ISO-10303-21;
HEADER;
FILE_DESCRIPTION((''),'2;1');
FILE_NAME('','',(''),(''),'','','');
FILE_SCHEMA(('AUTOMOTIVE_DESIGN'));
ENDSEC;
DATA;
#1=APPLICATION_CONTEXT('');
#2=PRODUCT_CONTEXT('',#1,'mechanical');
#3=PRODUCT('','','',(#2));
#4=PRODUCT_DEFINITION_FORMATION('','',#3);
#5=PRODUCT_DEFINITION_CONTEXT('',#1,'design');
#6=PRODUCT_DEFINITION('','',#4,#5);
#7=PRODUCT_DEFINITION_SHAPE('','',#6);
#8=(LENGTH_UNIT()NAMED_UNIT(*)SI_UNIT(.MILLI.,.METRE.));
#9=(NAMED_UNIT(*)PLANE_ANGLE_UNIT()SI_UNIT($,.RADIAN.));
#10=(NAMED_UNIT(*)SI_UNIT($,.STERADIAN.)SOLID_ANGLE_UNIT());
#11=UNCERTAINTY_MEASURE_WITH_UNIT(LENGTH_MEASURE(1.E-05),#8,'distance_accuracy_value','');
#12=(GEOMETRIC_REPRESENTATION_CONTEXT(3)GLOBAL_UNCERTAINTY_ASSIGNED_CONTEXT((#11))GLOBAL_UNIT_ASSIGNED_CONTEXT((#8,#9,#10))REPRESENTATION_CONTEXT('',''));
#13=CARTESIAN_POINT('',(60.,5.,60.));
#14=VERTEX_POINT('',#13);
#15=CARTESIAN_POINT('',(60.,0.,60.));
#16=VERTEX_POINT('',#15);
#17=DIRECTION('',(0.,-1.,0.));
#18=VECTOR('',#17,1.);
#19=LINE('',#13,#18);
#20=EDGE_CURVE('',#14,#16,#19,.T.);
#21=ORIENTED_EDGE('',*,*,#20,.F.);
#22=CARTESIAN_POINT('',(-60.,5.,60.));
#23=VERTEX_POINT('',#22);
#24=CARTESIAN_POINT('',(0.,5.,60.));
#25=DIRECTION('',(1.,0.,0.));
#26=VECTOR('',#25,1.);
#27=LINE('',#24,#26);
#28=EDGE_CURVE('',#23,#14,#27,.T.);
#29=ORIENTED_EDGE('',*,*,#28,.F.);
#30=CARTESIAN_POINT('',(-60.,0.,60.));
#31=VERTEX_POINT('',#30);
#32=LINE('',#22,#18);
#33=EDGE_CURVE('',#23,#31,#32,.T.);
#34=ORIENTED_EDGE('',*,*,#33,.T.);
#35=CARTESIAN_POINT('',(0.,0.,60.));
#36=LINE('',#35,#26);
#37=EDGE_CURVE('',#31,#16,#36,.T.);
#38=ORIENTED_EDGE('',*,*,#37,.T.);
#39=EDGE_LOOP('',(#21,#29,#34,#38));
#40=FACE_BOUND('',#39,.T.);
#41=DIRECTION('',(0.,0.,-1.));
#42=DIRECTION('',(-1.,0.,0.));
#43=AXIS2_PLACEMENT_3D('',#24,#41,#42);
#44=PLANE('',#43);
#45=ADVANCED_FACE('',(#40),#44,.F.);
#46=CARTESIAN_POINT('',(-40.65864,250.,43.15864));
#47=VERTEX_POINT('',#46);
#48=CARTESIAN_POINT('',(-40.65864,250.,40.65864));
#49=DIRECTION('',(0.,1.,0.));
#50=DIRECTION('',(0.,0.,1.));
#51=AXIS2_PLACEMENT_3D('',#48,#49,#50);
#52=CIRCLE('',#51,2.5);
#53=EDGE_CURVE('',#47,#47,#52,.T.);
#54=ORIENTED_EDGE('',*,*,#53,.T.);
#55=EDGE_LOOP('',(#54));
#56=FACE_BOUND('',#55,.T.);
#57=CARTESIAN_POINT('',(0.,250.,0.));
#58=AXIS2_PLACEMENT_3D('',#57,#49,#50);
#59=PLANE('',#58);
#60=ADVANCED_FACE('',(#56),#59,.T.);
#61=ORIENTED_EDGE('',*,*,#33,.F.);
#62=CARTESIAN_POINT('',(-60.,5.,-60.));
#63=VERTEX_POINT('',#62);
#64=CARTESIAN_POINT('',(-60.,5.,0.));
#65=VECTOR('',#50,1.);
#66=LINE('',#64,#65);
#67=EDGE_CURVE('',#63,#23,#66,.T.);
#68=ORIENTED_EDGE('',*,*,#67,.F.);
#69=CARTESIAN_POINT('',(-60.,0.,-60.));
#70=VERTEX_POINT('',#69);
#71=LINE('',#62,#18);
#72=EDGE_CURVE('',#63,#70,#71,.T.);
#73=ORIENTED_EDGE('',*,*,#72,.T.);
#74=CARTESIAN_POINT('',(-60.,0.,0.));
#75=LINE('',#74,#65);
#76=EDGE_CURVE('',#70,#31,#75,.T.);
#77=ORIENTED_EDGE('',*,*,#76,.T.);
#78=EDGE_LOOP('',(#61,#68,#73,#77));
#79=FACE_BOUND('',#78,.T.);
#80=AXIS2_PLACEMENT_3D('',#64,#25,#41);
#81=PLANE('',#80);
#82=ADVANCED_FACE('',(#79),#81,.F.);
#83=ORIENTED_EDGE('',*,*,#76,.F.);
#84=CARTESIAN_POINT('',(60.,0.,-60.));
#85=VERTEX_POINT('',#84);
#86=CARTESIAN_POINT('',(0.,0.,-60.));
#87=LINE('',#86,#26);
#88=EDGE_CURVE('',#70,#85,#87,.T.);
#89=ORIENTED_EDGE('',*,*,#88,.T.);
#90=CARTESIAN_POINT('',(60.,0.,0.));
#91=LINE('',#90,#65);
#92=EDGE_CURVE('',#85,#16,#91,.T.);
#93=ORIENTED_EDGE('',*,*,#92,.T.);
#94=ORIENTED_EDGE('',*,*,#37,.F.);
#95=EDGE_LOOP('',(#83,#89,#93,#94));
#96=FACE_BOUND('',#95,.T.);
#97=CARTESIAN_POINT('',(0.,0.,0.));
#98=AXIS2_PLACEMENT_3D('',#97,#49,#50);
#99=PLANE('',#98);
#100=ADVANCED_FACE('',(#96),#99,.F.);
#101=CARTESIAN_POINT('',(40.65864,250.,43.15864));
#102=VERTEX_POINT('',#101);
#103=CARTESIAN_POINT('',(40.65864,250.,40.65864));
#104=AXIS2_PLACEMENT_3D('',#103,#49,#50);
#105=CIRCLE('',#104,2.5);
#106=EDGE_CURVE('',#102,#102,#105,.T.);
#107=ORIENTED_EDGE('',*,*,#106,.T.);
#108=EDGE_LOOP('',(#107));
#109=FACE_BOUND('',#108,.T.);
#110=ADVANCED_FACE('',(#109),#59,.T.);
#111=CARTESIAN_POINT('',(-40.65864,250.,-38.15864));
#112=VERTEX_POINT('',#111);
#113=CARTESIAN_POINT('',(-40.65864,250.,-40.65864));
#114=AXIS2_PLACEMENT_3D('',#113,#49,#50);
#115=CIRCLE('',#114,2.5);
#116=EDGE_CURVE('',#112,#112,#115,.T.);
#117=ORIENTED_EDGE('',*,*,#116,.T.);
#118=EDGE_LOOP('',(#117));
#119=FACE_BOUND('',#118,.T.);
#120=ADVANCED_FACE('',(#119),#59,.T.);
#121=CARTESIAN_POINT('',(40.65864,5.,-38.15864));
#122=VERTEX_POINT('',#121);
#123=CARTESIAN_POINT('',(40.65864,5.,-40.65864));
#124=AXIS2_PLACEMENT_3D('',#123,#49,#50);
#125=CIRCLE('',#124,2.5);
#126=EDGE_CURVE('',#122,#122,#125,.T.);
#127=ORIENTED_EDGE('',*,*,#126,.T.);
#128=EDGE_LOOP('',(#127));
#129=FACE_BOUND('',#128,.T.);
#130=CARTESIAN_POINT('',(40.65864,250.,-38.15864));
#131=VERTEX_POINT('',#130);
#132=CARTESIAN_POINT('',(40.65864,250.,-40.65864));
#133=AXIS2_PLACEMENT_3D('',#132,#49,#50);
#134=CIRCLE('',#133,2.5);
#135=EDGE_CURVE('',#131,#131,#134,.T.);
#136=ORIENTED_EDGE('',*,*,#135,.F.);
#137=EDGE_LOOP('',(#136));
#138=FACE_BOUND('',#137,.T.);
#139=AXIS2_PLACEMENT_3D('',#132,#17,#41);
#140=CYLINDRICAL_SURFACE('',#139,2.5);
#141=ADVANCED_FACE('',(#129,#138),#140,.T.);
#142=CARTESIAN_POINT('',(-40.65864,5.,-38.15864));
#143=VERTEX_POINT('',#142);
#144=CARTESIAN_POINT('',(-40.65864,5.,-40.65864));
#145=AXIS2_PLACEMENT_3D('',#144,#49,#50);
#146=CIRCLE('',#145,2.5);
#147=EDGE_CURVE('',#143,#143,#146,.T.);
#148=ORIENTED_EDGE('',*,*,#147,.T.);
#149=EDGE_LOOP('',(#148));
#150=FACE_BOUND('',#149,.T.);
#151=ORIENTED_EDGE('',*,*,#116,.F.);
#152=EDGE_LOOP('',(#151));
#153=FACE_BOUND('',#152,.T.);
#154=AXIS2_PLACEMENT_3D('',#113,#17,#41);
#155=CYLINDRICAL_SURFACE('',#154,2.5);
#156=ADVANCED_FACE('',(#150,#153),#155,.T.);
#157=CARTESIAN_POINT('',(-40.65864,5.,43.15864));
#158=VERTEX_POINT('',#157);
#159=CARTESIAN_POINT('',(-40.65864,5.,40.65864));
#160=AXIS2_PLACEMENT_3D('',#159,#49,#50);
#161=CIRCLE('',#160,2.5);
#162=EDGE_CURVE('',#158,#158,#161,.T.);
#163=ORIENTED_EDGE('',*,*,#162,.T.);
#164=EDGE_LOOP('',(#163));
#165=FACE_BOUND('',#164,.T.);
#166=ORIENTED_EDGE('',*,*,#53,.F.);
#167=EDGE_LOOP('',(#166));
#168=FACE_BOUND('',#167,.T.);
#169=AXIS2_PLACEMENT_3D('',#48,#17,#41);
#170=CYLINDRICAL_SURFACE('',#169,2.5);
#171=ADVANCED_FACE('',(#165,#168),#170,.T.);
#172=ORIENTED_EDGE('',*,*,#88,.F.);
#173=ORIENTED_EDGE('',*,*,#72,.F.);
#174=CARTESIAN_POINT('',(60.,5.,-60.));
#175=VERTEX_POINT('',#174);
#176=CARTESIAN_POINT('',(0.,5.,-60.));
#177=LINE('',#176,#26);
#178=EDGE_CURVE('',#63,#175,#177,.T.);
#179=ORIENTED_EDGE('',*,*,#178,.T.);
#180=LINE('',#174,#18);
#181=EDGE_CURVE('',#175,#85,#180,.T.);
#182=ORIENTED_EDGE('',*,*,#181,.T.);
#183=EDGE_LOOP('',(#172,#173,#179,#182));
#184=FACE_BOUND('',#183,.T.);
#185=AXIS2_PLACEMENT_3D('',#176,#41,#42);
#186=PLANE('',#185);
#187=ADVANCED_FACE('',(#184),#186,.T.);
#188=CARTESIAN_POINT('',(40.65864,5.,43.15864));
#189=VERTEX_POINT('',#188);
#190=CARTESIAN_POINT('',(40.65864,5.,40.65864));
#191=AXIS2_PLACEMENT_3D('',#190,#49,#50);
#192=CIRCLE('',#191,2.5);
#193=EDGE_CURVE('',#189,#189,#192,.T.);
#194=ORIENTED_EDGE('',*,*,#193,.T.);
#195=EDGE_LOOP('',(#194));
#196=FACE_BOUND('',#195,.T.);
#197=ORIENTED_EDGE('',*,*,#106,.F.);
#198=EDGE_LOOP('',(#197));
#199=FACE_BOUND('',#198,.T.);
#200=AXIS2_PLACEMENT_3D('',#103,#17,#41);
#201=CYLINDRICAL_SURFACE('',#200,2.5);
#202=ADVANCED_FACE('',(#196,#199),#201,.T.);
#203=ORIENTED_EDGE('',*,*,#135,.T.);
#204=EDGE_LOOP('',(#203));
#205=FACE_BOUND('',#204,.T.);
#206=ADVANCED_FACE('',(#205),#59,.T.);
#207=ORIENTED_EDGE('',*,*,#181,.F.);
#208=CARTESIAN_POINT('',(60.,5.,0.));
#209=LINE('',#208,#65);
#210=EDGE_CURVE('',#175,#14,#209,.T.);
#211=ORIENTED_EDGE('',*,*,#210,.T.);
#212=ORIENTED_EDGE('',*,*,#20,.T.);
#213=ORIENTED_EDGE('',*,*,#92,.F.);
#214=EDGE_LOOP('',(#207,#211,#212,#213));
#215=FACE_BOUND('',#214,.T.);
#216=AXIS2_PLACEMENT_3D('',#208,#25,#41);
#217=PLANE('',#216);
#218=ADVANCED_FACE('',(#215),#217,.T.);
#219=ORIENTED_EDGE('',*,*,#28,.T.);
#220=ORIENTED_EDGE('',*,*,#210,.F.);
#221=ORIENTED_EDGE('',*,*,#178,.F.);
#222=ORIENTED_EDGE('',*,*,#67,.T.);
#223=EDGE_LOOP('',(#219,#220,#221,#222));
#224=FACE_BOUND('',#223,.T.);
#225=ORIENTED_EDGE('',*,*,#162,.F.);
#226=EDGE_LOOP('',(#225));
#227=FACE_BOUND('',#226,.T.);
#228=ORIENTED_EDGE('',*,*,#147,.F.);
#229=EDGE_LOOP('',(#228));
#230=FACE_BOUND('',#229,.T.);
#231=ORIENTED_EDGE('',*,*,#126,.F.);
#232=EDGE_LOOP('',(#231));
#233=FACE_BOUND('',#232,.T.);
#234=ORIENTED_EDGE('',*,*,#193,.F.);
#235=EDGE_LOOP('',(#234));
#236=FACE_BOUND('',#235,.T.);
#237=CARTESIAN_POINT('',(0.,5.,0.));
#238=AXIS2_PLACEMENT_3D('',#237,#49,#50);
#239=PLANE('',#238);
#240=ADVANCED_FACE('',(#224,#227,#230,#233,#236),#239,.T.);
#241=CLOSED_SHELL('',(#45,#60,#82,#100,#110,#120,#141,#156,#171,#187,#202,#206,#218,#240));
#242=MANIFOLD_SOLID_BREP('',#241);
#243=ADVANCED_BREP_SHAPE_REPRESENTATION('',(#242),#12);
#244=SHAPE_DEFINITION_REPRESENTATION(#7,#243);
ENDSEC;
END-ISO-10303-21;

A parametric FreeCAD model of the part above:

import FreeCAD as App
import Part
import Sketcher
from FreeCAD import Vector

doc = App.newDocument("Part")
body = doc.addObject("PartDesign::Body", "Body")

# Sketch on XZ plane
sketch1 = body.newObject("Sketcher::SketchObject", "Sketch")
sketch1.AttachmentSupport = (doc.getObject("XZ_Plane"), [""])
sketch1.MapMode = "FlatFace"
sketch1.addGeometry([
    Part.LineSegment(Vector(-60, -60, 0), Vector(-60, 60, 0)),  # 0
    Part.LineSegment(Vector(-60, 60, 0), Vector(60, 60, 0)),  # 1
    Part.LineSegment(Vector(60, 60, 0), Vector(60, -60, 0)),  # 2
    Part.LineSegment(Vector(60, -60, 0), Vector(-60, -60, 0)),  # 3
    Part.Circle(Vector(-40.65864, 40.65864, 0), Vector(0, 0, 1), 2.5),  # 4
    Part.Circle(Vector(40.65864, 40.65864, 0), Vector(0, 0, 1), 2.5),  # 5
    Part.Circle(Vector(-40.65864, -40.65864, 0), Vector(0, 0, 1), 2.5),  # 6
    Part.Circle(Vector(40.65864, -40.65864, 0), Vector(0, 0, 1), 2.5),  # 7
], False)
sketch1.addConstraint([
    Sketcher.Constraint("Coincident", 0, 2, 1, 1),
    Sketcher.Constraint("Coincident", 1, 2, 2, 1),
    Sketcher.Constraint("Coincident", 2, 2, 3, 1),
    Sketcher.Constraint("Coincident", 3, 2, 0, 1),
    Sketcher.Constraint("Vertical", 0),
    Sketcher.Constraint("Horizontal", 1),
    Sketcher.Constraint("Vertical", 2),
    Sketcher.Constraint("Horizontal", 3),
    Sketcher.Constraint("Equal", 4, 5),
    Sketcher.Constraint("Equal", 5, 6),
    Sketcher.Constraint("Equal", 6, 7),
    Sketcher.Constraint("Symmetric", 5, 3, 6, 3, -1, 1),
    Sketcher.Constraint("Symmetric", 4, 3, 7, 3, -1, 1),
    Sketcher.Constraint("Symmetric", 0, 2, 2, 2, -1, 1),
    Sketcher.Constraint("Symmetric", 4, 3, 5, 3, -2),
    Sketcher.Constraint("Equal", 3, 0),
    Sketcher.Constraint("Diameter", 4, 5.0),
    Sketcher.Constraint("DistanceX", 1, 1, 1, 2, 120.0),
    Sketcher.Constraint("DistanceX", 4, 3, -1, 1, 40.65864),
    Sketcher.Constraint("DistanceY", -1, 1, 4, 3, 40.65864),
])
pad1 = body.newObject("PartDesign::Pad", "Pad")
pad1.Profile = sketch1
pad1.Length = 5
pad1.Reversed = True

# Sketch on XZ plane
sketch2 = body.newObject("Sketcher::SketchObject", "Sketch001")
sketch2.AttachmentSupport = (doc.getObject("XZ_Plane"), [""])
sketch2.MapMode = "FlatFace"
sketch2.addGeometry([
    Part.Circle(Vector(-40.65864, 40.65864, 0), Vector(0, 0, 1), 2.5),
    Part.Circle(Vector(-40.65864, -40.65864, 0), Vector(0, 0, 1), 2.5),
    Part.Circle(Vector(40.65864, -40.65864, 0), Vector(0, 0, 1), 2.5),
    Part.Circle(Vector(40.65864, 40.65864, 0), Vector(0, 0, 1), 2.5),
], False)
sketch2.addConstraint([
    Sketcher.Constraint("Equal", 0, 1),
    Sketcher.Constraint("Equal", 1, 2),
    Sketcher.Constraint("Equal", 2, 3),
    Sketcher.Constraint("Symmetric", 0, 3, 2, 3, -1, 1),
    Sketcher.Constraint("Symmetric", 1, 3, 3, 3, -1, 1),
    Sketcher.Constraint("Symmetric", 1, 3, 2, 3, -2),
    Sketcher.Constraint("Diameter", 0, 5.0),
    Sketcher.Constraint("DistanceX", 0, 3, -1, 1, 40.65864),
    Sketcher.Constraint("DistanceY", -1, 1, 0, 3, 40.65864),
])
pad2 = body.newObject("PartDesign::Pad", "Pad001")
pad2.Profile = sketch2
pad2.Length = 250
pad2.Reversed = True

doc.recompute()
